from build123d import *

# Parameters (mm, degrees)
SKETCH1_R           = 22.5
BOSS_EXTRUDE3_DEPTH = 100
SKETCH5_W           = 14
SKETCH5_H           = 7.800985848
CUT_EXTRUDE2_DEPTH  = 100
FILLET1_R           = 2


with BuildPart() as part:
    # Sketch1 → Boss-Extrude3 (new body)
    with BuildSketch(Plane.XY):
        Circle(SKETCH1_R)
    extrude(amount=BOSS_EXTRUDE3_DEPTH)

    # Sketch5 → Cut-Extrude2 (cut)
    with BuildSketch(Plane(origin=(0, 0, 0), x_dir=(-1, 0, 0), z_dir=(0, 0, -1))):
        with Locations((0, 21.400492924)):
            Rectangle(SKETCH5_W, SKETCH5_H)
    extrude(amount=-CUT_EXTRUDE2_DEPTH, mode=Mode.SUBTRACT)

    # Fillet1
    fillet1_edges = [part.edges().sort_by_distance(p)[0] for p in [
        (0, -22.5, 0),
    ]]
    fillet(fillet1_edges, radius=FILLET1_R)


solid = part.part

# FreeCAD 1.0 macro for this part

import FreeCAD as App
import Part
import Sketcher

V = App.Vector
Q = App.Units.Quantity


def edges_at(feature, points):
    """Names of the edges that pass closest to the given points."""
    edges = feature.Shape.Edges
    near = lambda p: min(range(len(edges)), key=lambda i: edges[i].distToShape(Part.Vertex(*p))[0])
    return sorted({f"Edge{near(p) + 1}" for p in points})


def add_polygon(sketch, points):
    """Adds a closed chain of lines whose ends are joined by coincident constraints."""
    first, n = sketch.GeometryCount, len(points)
    for a, b in zip(points, points[1:] + points[:1]):
        sketch.addGeometry(Part.LineSegment(App.Vector(*a, 0), App.Vector(*b, 0)), False)
    for i in range(n):
        sketch.addConstraint(Sketcher.Constraint("Coincident", first + i, 2, first + (i + 1) % n, 1))

doc = App.newDocument("Part")
body = doc.addObject("PartDesign::Body", "Body")

# Sketch on XY plane
sketch1 = body.newObject("Sketcher::SketchObject", "Sketch")
sketch1.AttachmentSupport = (doc.getObject("XY_Plane"), [""])
sketch1.MapMode = "FlatFace"
sketch1.addGeometry(Part.Circle(V(0, 0, 0), V(0, 0, 1), 22.5), False)
sketch1.addConstraint(Sketcher.Constraint("Coincident", 0, 3, -1, 1))
sketch1.addConstraint(Sketcher.Constraint("Diameter", 0, Q("45 mm")))
pad1 = body.newObject("PartDesign::Pad", "Pad")
pad1.Profile = sketch1
pad1.Length = 100

# Sketch on XY plane
sketch2 = body.newObject("Sketcher::SketchObject", "Sketch001")
sketch2.AttachmentSupport = (doc.getObject("XY_Plane"), [""])
sketch2.MapMode = "FlatFace"
add_polygon(sketch2, [(7, 25.300986), (7, 17.5), (-7, 17.5), (-7, 25.300986)])  # lines 0-3
sketch2.addConstraint(Sketcher.Constraint("Vertical", 0))
sketch2.addConstraint(Sketcher.Constraint("Horizontal", 1))
sketch2.addConstraint(Sketcher.Constraint("Vertical", 2))
sketch2.addConstraint(Sketcher.Constraint("Horizontal", 3))
sketch2.addConstraint(Sketcher.Constraint("DistanceX", 1, 2, 1, 1, Q("14 mm")))
sketch2.addConstraint(Sketcher.Constraint("DistanceX", -1, 1, 0, 2, Q("7 mm")))
sketch2.addConstraint(Sketcher.Constraint("DistanceY", -1, 1, 0, 2, Q("17.5 mm")))
sketch2.addConstraint(Sketcher.Constraint("DistanceY", 0, 2, 0, 1, Q("7.800986 mm")))
pocket1 = body.newObject("PartDesign::Pocket", "Pocket")
pocket1.Profile = sketch2
pocket1.Length = 100
pocket1.Reversed = True
doc.recompute()

fillet = body.newObject("PartDesign::Fillet", "Fillet")
fillet.Base = (pocket1, edges_at(pocket1, [(0, -22.5, 0)]))
fillet.Radius = 2

doc.recompute()
